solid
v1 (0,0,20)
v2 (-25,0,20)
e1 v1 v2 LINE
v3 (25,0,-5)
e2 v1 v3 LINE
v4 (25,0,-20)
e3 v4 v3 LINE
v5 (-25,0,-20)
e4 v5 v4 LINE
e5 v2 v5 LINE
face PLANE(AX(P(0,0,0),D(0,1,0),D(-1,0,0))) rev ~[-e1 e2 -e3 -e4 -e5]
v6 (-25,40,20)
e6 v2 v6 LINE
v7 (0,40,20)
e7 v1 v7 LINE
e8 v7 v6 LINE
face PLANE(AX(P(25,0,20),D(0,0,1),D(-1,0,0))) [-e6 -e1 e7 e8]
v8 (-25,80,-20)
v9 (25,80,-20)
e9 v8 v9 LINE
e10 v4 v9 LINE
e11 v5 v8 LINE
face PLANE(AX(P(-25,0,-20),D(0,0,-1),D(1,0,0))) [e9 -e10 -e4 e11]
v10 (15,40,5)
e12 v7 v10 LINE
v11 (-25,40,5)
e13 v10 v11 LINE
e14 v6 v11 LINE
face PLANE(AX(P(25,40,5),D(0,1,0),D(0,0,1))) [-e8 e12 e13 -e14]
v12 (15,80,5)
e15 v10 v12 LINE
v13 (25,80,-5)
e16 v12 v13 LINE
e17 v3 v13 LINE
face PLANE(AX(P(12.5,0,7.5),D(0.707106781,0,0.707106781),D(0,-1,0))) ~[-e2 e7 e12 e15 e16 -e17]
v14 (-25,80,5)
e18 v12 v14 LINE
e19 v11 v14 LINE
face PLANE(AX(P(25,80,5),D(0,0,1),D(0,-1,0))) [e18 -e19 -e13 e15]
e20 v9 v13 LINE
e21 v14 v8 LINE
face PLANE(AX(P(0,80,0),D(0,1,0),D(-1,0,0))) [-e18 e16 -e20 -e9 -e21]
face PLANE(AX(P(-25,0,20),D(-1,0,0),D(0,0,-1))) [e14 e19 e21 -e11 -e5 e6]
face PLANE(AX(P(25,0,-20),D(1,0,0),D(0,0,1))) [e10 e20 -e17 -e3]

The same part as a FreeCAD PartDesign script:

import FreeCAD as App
import Part
import Sketcher
from FreeCAD import Vector
Q = App.Units.Quantity


def edges_at(feature, points):
    """Names of the edges that pass closest to the given points."""
    edges = feature.Shape.Edges
    near = lambda p: min(range(len(edges)), key=lambda i: edges[i].distToShape(Part.Vertex(*p))[0])
    return sorted({f"Edge{near(p) + 1}" for p in points})

doc = App.newDocument("Part")
body = doc.addObject("PartDesign::Body", "Body")

sketch1 = body.newObject("Sketcher::SketchObject", "Sketch")
sketch1.AttachmentSupport = (doc.getObject("XZ_Plane"), [""])
sketch1.MapMode = "FlatFace"
sketch1.addGeometry([
    Part.LineSegment(Vector(-25, 20, 0), Vector(25, 20, 0)),
    Part.LineSegment(Vector(25, 20, 0), Vector(25, -20, 0)),
    Part.LineSegment(Vector(25, -20, 0), Vector(-25, -20, 0)),
    Part.LineSegment(Vector(-25, -20, 0), Vector(-25, 20, 0)),
], False)
sketch1.addConstraint([
    Sketcher.Constraint("Coincident", 0, 2, 1, 1),
    Sketcher.Constraint("Coincident", 1, 2, 2, 1),
    Sketcher.Constraint("Coincident", 2, 2, 3, 1),
    Sketcher.Constraint("Coincident", 3, 2, 0, 1),
    Sketcher.Constraint("Horizontal", 0),
    Sketcher.Constraint("Vertical", 1),
    Sketcher.Constraint("Horizontal", 2),
    Sketcher.Constraint("Vertical", 3),
    Sketcher.Constraint("Symmetric", 0, 2, 2, 2, -1, 1),
    Sketcher.Constraint("DistanceX", 0, 1, 0, 2, Q("50 mm")),
    Sketcher.Constraint("DistanceY", 1, 2, 1, 1, Q("40 mm")),
])
pad1 = body.newObject("PartDesign::Pad", "Pad")
pad1.Profile = sketch1
pad1.Length = 80
pad1.Reversed = True

sketch2 = body.newObject("Sketcher::SketchObject", "Sketch001")
sketch2.AttachmentSupport = (doc.getObject("YZ_Plane"), [""])
sketch2.MapMode = "FlatFace"
sketch2.AttachmentOffset = App.Placement(Vector(0, 0, 25), App.Rotation())
sketch2.addGeometry([
    Part.LineSegment(Vector(80, 5, 0), Vector(80, 20, 0)),
    Part.LineSegment(Vector(80, 20, 0), Vector(40, 20, 0)),
    Part.LineSegment(Vector(40, 20, 0), Vector(40, 5, 0)),
    Part.LineSegment(Vector(40, 5, 0), Vector(80, 5, 0)),
], False)
sketch2.addConstraint([
    Sketcher.Constraint("Coincident", 0, 2, 1, 1),
    Sketcher.Constraint("Coincident", 1, 2, 2, 1),
    Sketcher.Constraint("Coincident", 2, 2, 3, 1),
    Sketcher.Constraint("Coincident", 3, 2, 0, 1),
    Sketcher.Constraint("Vertical", 0),
    Sketcher.Constraint("Horizontal", 1),
    Sketcher.Constraint("Vertical", 2),
    Sketcher.Constraint("Horizontal", 3),
    Sketcher.Constraint("DistanceX", 1, 2, 1, 1, Q("40 mm")),
    Sketcher.Constraint("DistanceX", -1, 1, 1, 2, Q("40 mm")),
    Sketcher.Constraint("DistanceY", 0, 1, 0, 2, Q("15 mm")),
    Sketcher.Constraint("DistanceY", -1, 1, 0, 2, Q("20 mm")),
])
pocket1 = body.newObject("PartDesign::Pocket", "Pocket")
pocket1.Profile = sketch2
pocket1.Type = "ThroughAll"
doc.recompute()

chamfer = body.newObject("PartDesign::Chamfer", "Chamfer")
chamfer.Base = (pocket1, edges_at(pocket1, [(25, 20, 20)]))
chamfer.Size = 25

doc.recompute()
